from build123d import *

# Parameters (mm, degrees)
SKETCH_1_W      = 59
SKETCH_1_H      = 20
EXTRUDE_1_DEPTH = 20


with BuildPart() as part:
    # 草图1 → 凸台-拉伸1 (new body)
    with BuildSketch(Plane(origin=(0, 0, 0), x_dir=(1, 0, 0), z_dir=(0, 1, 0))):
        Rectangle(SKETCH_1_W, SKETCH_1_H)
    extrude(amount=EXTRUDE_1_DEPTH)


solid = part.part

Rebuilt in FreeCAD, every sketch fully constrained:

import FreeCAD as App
import Part
import Sketcher

V = App.Vector
Q = App.Units.Quantity

doc = App.newDocument("Part")
body = doc.addObject("PartDesign::Body", "Body")

sketch1 = body.newObject("Sketcher::SketchObject", "Sketch")
sketch1.AttachmentSupport = (doc.getObject("XZ_Plane"), [""])
sketch1.MapMode = "FlatFace"
sketch1.addGeometry(Part.LineSegment(V(-30, -10, 0), V(-30, 10, 0)), False)
sketch1.addGeometry(Part.LineSegment(V(-30, 10, 0), V(30, 10, 0)), False)
sketch1.addGeometry(Part.LineSegment(V(30, 10, 0), V(30, -10, 0)), False)
sketch1.addGeometry(Part.LineSegment(V(30, -10, 0), V(-30, -10, 0)), False)
sketch1.addConstraint(Sketcher.Constraint("Coincident", 0, 2, 1, 1))
sketch1.addConstraint(Sketcher.Constraint("Coincident", 1, 2, 2, 1))
sketch1.addConstraint(Sketcher.Constraint("Coincident", 2, 2, 3, 1))
sketch1.addConstraint(Sketcher.Constraint("Coincident", 3, 2, 0, 1))
sketch1.addConstraint(Sketcher.Constraint("Vertical", 0))
sketch1.addConstraint(Sketcher.Constraint("Horizontal", 1))
sketch1.addConstraint(Sketcher.Constraint("Vertical", 2))
sketch1.addConstraint(Sketcher.Constraint("Horizontal", 3))
sketch1.addConstraint(Sketcher.Constraint("Symmetric", 0, 2, 2, 2, -1, 1))
sketch1.addConstraint(Sketcher.Constraint("DistanceX", 1, 1, 1, 2, Q("59 mm")))
sketch1.addConstraint(Sketcher.Constraint("DistanceY", 0, 1, 0, 2, Q("20 mm")))
pad1 = body.newObject("PartDesign::Pad", "Pad")
pad1.Profile = sketch1
pad1.Length = 20
pad1.Reversed = True

doc.recompute()
